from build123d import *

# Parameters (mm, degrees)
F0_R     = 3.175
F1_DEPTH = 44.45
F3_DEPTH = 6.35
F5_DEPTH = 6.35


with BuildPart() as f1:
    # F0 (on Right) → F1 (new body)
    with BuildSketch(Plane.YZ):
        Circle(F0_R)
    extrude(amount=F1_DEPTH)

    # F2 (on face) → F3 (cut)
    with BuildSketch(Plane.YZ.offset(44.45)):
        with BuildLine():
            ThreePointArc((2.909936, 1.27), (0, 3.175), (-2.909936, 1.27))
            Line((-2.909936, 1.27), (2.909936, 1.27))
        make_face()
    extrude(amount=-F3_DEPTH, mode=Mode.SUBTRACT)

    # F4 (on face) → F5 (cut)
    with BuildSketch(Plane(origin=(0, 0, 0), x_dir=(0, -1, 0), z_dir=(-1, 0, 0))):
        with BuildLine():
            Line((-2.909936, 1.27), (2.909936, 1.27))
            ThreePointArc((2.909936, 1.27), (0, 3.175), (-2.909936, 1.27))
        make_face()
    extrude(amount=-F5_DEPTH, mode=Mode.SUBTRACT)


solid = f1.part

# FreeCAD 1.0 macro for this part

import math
import FreeCAD as App
import Part
import Sketcher

V = App.Vector
Q = App.Units.Quantity

doc = App.newDocument("Part")
body = doc.addObject("PartDesign::Body", "Body")

# Sketch on YZ plane
sketch1 = body.newObject("Sketcher::SketchObject", "Sketch")
sketch1.AttachmentSupport = (doc.getObject("YZ_Plane"), [""])
sketch1.MapMode = "FlatFace"
sketch1.addGeometry(Part.Circle(V(0, 0, 0), V(0, 0, 1), 3.175), False)
sketch1.addConstraint([
    Sketcher.Constraint("Coincident", 0, 3, -1, 1),
    Sketcher.Constraint("Diameter", 0, Q("0.25 in")),
])
pad1 = body.newObject("PartDesign::Pad", "Pad")
pad1.Profile = sketch1
pad1.Length = Q("1.75 in")

# Sketch on YZ plane
sketch2 = body.newObject("Sketcher::SketchObject", "Sketch001")
sketch2.AttachmentSupport = (doc.getObject("YZ_Plane"), [""])
sketch2.MapMode = "FlatFace"
sketch2.AttachmentOffset = App.Placement(V(0, 0, 1.75 * 25.4), App.Rotation())
sketch2.addGeometry([
    Part.ArcOfCircle(Part.Circle(V(0, -0.000001, 0), V(0, 0, 1), 3.175001), math.radians(23.578186), math.radians(156.421814)),
    Part.LineSegment(V(-2.909936, 1.27, 0), V(2.909936, 1.27, 0)),
], False)
sketch2.addConstraint([
    Sketcher.Constraint("Coincident", 0, 1, 1, 2),
    Sketcher.Constraint("Coincident", 1, 1, 0, 2),
    Sketcher.Constraint("Horizontal", 1),
    Sketcher.Constraint("Coincident", 0, 3, -1, 1),
    Sketcher.Constraint("Radius", 0, Q("0.125 in")),
    Sketcher.Constraint("DistanceY", -1, 1, 0, 1, Q("0.05 in")),
])
pocket1 = body.newObject("PartDesign::Pocket", "Pocket")
pocket1.Profile = sketch2
pocket1.Length = Q("0.25 in")

# Sketch on YZ plane
sketch3 = body.newObject("Sketcher::SketchObject", "Sketch002")
sketch3.AttachmentSupport = (doc.getObject("YZ_Plane"), [""])
sketch3.MapMode = "FlatFace"
sketch3.addGeometry([
    Part.LineSegment(V(2.909936, 1.27, 0), V(-2.909936, 1.27, 0)),
    Part.ArcOfCircle(Part.Circle(V(0, -0.000001, 0), V(0, 0, 1), 3.175001), math.radians(23.578186), math.radians(156.421814)),
], False)
sketch3.addConstraint([
    Sketcher.Constraint("Coincident", 0, 1, 1, 1),
    Sketcher.Constraint("Coincident", 1, 2, 0, 2),
    Sketcher.Constraint("Horizontal", 0),
    Sketcher.Constraint("Coincident", 1, 3, -1, 1),
    Sketcher.Constraint("Radius", 1, Q("0.125 in")),
    Sketcher.Constraint("DistanceY", -1, 1, 0, 1, Q("0.05 in")),
])
pocket2 = body.newObject("PartDesign::Pocket", "Pocket001")
pocket2.Profile = sketch3
pocket2.Length = Q("0.25 in")
pocket2.Reversed = True

doc.recompute()
